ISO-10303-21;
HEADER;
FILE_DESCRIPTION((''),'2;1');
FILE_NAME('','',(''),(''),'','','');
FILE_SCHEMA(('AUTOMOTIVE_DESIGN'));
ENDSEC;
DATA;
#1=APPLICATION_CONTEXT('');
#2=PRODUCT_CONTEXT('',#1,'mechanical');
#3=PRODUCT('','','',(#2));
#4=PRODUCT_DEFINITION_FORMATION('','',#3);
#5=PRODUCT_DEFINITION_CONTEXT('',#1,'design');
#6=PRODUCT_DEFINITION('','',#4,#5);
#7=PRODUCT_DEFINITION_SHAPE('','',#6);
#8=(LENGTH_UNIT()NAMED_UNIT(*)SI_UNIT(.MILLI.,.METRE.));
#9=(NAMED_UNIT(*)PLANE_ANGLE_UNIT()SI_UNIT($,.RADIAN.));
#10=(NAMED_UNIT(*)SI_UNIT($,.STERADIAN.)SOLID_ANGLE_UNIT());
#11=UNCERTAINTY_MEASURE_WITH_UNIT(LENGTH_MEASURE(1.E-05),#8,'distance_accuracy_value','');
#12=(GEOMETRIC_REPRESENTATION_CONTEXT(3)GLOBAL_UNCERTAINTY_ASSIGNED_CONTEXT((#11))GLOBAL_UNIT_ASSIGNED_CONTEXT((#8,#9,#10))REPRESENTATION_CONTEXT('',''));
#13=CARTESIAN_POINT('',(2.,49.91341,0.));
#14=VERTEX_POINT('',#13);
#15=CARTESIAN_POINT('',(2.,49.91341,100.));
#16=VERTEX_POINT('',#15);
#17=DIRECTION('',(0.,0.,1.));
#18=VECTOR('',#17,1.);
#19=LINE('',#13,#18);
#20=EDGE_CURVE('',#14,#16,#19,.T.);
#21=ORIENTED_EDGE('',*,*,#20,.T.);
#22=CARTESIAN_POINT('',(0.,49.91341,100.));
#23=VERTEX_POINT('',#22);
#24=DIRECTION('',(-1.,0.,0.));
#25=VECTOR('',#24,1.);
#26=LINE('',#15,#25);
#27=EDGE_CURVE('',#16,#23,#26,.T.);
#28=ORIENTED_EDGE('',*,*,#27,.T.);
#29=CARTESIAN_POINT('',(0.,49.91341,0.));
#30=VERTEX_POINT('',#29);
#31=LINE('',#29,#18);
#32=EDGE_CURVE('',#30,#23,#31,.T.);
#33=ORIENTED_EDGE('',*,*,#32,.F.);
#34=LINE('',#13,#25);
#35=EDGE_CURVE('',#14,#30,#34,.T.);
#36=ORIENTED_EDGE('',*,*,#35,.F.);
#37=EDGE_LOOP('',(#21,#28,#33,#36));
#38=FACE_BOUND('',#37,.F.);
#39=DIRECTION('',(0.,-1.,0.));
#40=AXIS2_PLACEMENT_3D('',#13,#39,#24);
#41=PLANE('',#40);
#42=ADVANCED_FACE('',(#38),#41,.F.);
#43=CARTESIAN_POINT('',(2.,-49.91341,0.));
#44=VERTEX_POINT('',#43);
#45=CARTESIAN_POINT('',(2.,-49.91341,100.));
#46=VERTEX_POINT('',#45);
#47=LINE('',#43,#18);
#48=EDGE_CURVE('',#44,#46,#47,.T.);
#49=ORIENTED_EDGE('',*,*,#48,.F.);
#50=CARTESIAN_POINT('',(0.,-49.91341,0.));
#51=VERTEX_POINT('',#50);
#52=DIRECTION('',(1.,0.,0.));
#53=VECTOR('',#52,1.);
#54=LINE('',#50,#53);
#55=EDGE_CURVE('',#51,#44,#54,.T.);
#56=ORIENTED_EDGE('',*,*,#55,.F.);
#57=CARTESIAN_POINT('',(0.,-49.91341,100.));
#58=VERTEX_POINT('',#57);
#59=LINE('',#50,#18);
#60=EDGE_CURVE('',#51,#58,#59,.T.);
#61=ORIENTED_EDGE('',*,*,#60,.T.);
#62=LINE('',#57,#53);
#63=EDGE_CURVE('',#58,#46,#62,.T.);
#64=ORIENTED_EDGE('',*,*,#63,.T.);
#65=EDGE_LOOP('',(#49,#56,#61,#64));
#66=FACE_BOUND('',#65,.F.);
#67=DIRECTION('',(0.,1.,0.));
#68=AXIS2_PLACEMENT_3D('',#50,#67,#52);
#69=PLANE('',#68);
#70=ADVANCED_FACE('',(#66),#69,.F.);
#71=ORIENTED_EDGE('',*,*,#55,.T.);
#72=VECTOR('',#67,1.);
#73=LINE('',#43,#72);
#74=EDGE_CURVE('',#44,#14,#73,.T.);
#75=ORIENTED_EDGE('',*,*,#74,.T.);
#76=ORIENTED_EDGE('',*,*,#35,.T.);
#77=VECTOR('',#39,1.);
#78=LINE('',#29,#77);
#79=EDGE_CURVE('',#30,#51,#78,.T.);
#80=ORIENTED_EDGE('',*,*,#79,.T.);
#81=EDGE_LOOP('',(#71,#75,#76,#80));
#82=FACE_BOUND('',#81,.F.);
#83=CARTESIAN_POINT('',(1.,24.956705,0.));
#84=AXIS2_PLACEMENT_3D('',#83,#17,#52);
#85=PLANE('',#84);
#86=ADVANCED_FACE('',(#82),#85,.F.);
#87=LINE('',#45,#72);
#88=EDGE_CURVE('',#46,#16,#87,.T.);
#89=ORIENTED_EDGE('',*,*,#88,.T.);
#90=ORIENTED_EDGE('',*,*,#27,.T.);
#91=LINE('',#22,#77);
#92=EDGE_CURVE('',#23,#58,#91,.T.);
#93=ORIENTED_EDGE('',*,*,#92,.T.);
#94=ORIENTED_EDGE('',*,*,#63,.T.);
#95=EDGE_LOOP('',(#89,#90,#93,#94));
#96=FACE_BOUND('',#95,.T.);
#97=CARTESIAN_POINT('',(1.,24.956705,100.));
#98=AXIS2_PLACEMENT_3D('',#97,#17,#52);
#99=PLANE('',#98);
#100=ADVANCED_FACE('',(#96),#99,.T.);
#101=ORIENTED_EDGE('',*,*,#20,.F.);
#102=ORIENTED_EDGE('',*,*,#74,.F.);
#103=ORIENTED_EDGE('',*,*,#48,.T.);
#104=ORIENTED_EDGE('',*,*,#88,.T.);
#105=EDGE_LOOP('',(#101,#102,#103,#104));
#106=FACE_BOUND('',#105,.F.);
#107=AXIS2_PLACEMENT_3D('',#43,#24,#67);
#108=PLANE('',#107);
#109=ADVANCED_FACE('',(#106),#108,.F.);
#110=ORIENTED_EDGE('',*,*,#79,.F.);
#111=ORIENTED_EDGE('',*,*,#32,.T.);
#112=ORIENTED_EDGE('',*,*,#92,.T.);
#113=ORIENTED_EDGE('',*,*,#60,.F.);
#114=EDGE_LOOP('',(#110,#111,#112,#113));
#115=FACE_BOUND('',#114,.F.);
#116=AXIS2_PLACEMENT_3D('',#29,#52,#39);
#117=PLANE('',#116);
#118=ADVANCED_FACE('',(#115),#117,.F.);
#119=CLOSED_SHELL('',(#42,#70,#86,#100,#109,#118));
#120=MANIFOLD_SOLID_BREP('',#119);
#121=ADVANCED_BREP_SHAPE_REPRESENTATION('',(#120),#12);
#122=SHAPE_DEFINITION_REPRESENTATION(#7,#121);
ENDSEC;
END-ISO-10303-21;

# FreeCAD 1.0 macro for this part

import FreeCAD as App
import Part
import Sketcher


def add_polygon(sketch, points):
    """Adds a closed chain of lines whose ends are joined by coincident constraints."""
    first, n = sketch.GeometryCount, len(points)
    for a, b in zip(points, points[1:] + points[:1]):
        sketch.addGeometry(Part.LineSegment(App.Vector(*a, 0), App.Vector(*b, 0)), False)
    for i in range(n):
        sketch.addConstraint(Sketcher.Constraint("Coincident", first + i, 2, first + (i + 1) % n, 1))

doc = App.newDocument("Part")
body = doc.addObject("PartDesign::Body", "Body")

sketch1 = body.newObject("Sketcher::SketchObject", "Sketch")
sketch1.AttachmentSupport = (doc.getObject("XY_Plane"), [""])
sketch1.MapMode = "FlatFace"
add_polygon(sketch1, [(0, 49.9), (0, -49.9), (2, -49.9), (2, 49.9)])
sketch1.addConstraint([
    Sketcher.Constraint("Vertical", 0),
    Sketcher.Constraint("Horizontal", 1),
    Sketcher.Constraint("Vertical", 2),
    Sketcher.Constraint("Horizontal", 3),
    Sketcher.Constraint("Symmetric", 0, 2, 3, 2, -1, 1),
    Sketcher.Constraint("DistanceX", 1, 1, 1, 2, 2.0),
    Sketcher.Constraint("DistanceY", 0, 2, 0, 1, 99.82682),
])
pad1 = body.newObject("PartDesign::Pad", "Pad")
pad1.Profile = sketch1
pad1.Length = 100

doc.recompute()
